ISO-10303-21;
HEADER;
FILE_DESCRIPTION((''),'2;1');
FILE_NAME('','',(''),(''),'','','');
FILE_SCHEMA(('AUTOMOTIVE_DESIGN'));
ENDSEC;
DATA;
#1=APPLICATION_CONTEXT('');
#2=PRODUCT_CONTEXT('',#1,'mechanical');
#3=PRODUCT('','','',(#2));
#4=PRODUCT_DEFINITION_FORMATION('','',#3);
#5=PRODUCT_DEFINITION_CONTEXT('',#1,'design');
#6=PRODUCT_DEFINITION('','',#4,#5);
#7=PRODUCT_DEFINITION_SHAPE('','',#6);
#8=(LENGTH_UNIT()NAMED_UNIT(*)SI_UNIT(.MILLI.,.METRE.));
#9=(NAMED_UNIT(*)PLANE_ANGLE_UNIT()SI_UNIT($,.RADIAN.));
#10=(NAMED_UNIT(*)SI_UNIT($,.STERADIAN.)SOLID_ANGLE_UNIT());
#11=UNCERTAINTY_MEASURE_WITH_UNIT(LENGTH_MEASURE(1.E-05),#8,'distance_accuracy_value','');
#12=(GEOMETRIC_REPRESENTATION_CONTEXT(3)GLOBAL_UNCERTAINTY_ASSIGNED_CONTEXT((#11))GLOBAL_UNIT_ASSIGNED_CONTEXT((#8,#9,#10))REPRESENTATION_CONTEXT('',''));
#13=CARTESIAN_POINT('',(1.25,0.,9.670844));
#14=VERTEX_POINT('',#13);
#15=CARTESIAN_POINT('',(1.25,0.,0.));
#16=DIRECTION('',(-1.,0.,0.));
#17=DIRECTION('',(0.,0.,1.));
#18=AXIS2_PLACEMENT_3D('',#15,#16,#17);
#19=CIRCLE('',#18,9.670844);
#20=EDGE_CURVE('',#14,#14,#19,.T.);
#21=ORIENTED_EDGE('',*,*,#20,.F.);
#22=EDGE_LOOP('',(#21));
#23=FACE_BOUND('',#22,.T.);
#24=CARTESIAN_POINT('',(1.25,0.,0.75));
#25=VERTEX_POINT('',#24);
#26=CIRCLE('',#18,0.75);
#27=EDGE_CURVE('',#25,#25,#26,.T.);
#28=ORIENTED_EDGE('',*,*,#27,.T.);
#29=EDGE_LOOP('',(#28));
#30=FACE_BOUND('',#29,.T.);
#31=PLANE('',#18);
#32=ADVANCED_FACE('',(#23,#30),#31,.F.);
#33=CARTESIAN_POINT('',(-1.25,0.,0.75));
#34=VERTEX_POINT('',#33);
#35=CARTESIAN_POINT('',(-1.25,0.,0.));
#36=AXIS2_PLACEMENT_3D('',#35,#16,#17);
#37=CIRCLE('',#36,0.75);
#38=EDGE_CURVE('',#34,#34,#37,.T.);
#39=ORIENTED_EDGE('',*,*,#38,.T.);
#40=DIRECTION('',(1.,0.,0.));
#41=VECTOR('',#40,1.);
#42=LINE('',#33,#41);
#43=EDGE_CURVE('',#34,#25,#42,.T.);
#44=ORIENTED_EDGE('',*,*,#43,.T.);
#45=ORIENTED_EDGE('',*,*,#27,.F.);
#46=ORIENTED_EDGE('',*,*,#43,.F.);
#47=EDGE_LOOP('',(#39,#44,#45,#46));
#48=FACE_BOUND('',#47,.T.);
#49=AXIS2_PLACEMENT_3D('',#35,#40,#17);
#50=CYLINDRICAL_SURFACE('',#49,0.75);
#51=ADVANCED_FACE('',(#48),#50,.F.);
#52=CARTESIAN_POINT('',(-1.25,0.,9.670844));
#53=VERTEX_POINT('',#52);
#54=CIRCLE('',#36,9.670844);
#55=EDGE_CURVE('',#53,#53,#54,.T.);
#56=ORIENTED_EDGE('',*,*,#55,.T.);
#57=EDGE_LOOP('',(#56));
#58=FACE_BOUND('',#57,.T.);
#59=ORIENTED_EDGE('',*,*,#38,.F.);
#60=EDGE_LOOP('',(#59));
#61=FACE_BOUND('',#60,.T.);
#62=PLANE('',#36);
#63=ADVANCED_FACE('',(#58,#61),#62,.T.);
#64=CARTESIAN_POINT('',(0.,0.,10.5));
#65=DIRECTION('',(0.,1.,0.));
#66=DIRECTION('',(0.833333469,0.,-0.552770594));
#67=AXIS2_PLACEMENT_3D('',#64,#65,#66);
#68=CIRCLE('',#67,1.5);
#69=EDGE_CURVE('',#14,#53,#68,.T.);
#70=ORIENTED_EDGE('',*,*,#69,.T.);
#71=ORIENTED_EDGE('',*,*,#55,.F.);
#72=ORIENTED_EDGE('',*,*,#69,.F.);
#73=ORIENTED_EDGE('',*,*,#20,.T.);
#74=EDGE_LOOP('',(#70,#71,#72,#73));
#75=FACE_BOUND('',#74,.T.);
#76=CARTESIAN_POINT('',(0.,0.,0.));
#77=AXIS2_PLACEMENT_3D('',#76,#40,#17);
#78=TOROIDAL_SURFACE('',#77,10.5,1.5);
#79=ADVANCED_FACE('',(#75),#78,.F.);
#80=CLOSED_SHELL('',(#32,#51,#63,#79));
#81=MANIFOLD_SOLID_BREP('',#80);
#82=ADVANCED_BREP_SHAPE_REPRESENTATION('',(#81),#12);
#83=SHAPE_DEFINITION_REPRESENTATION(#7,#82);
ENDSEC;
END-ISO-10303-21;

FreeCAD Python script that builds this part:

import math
import FreeCAD as App
import Part
import Sketcher

doc = App.newDocument("Part")
body = doc.addObject("PartDesign::Body", "Body")

# Sketch on XZ plane
sketch1 = body.newObject("Sketcher::SketchObject", "Sketch")
sketch1.AttachmentSupport = (doc.getObject("XZ_Plane"), [""])
sketch1.MapMode = "FlatFace"
sketch1.addGeometry([
    Part.ArcOfCircle(Part.Circle(App.Vector(0, 10.5, 0), App.Vector(0, 0, 1), 1.5), math.radians(-146.442704), math.radians(-33.557296)),
    Part.LineSegment(App.Vector(-1.25, 9.670844, 0), App.Vector(-1.25, 0.75, 0)),
    Part.LineSegment(App.Vector(-1.25, 0.75, 0), App.Vector(1.25, 0.75, 0)),
    Part.LineSegment(App.Vector(1.25, 0.75, 0), App.Vector(1.25, 9.670844, 0)),
], False)
sketch1.addConstraint([
    Sketcher.Constraint("Coincident", 0, 1, 1, 1),
    Sketcher.Constraint("Coincident", 1, 2, 2, 1),
    Sketcher.Constraint("Coincident", 2, 2, 3, 1),
    Sketcher.Constraint("Coincident", 3, 2, 0, 2),
    Sketcher.Constraint("Vertical", 1),
    Sketcher.Constraint("Horizontal", 2),
    Sketcher.Constraint("Vertical", 3),
    Sketcher.Constraint("Symmetric", 0, 1, 3, 2, -2),
    Sketcher.Constraint("Radius", 0, 1.5),
    Sketcher.Constraint("DistanceX", 2, 1, 2, 2, 2.5),
    Sketcher.Constraint("DistanceY", -1, 1, 0, 3, 10.5),
    Sketcher.Constraint("DistanceY", -1, 1, 1, 2, 0.75),
])
revolution = body.newObject("PartDesign::Revolution", "Revolution")
revolution.Profile = sketch1
revolution.ReferenceAxis = (sketch1, ["H_Axis"])
revolution.Angle = 360

doc.recompute()
